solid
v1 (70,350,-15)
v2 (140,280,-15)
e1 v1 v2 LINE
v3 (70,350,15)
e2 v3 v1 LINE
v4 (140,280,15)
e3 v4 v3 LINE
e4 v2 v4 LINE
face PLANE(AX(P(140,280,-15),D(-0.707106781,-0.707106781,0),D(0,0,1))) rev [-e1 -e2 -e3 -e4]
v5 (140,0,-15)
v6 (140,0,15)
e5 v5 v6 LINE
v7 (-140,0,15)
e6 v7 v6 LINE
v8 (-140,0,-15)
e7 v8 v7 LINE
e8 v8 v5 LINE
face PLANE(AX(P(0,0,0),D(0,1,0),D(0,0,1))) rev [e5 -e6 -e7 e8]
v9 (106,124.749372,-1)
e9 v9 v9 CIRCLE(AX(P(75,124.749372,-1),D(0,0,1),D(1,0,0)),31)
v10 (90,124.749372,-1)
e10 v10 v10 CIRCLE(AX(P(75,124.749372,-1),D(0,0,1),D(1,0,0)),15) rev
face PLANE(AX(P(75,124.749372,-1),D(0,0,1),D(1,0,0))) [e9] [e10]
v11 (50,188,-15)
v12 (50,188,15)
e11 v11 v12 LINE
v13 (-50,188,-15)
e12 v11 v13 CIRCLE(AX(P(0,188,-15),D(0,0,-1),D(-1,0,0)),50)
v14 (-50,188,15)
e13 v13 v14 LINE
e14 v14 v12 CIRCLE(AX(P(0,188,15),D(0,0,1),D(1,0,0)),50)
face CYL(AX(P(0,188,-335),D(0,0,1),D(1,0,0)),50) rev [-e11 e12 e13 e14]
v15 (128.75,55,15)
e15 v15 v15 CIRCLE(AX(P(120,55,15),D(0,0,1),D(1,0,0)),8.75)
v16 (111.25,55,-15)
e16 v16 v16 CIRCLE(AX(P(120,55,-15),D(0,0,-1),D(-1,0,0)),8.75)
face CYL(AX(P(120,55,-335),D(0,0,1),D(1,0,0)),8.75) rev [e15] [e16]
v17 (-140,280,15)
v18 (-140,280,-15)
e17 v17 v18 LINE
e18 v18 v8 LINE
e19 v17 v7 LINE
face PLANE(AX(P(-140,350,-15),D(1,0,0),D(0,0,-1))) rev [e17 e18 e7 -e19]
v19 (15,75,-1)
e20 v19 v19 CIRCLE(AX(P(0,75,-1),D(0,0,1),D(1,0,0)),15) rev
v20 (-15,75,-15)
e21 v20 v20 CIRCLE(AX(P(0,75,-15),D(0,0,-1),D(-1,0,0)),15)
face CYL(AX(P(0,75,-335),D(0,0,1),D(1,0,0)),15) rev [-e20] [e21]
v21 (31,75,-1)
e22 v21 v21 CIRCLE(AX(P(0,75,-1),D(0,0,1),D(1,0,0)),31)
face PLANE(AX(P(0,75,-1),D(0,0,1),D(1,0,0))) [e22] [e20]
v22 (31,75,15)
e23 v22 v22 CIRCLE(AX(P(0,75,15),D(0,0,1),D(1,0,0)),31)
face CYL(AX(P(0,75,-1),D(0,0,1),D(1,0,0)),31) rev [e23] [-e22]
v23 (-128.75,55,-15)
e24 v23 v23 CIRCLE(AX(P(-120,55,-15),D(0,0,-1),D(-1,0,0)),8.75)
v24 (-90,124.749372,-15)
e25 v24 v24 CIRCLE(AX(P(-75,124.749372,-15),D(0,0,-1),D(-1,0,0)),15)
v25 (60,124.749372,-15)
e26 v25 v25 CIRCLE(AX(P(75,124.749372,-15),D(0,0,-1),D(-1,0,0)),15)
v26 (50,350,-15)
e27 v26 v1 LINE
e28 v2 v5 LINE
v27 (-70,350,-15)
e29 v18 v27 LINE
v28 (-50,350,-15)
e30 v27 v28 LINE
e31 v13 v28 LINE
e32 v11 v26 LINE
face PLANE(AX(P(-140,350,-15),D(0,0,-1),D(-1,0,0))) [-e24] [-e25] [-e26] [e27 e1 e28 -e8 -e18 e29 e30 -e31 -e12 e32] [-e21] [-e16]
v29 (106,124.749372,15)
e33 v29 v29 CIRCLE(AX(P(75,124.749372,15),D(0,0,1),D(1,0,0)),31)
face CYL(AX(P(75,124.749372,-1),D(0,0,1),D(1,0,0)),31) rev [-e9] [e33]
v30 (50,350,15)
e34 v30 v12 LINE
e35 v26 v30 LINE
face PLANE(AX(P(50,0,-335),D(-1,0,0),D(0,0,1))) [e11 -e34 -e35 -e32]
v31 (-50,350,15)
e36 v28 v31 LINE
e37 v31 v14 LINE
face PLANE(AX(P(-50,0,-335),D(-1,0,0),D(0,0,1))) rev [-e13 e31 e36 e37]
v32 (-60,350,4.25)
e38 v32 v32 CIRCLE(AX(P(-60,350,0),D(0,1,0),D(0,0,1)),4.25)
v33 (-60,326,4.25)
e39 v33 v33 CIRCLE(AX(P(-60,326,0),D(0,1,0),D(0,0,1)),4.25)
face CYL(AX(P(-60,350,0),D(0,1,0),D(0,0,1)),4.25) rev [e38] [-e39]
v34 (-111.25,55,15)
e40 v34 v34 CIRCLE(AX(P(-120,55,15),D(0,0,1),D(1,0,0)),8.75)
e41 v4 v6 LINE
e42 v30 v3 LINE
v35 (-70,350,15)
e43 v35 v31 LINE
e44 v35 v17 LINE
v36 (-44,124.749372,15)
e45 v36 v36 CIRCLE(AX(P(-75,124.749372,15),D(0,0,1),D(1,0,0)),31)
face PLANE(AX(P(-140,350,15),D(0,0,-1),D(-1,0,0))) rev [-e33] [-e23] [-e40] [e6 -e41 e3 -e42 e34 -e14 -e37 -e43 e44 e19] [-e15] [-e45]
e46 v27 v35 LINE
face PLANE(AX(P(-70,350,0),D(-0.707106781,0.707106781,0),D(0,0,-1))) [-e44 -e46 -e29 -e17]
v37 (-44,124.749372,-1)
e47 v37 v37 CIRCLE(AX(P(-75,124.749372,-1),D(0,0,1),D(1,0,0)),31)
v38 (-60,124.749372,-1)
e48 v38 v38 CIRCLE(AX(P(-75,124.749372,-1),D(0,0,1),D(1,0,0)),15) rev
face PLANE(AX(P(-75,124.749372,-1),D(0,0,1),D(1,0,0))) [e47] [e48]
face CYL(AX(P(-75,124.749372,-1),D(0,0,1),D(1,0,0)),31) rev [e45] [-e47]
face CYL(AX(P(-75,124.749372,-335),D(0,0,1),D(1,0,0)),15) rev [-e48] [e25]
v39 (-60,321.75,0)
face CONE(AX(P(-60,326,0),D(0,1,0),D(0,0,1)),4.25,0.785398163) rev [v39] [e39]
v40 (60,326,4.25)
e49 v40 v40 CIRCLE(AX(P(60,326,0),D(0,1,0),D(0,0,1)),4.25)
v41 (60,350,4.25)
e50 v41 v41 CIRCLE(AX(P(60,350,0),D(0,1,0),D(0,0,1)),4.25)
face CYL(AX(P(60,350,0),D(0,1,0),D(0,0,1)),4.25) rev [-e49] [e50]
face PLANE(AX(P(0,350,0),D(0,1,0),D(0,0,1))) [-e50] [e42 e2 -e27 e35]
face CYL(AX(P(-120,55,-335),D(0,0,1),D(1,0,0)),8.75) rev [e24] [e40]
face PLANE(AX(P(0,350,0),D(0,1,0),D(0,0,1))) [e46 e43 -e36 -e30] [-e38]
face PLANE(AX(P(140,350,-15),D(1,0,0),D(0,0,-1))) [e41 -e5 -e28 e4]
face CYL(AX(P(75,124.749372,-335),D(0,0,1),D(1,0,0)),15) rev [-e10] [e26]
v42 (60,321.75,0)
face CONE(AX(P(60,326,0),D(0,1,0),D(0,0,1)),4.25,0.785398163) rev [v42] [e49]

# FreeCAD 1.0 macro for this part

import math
import FreeCAD as App
import Part
import Sketcher


def edges_at(feature, points):
    """Names of the edges that pass closest to the given points."""
    edges = feature.Shape.Edges
    near = lambda p: min(range(len(edges)), key=lambda i: edges[i].distToShape(Part.Vertex(*p))[0])
    return sorted({f"Edge{near(p) + 1}" for p in points})


def add_polygon(sketch, points):
    """Adds a closed chain of lines whose ends are joined by coincident constraints."""
    first, n = sketch.GeometryCount, len(points)
    for a, b in zip(points, points[1:] + points[:1]):
        sketch.addGeometry(Part.LineSegment(App.Vector(*a, 0), App.Vector(*b, 0)), False)
    for i in range(n):
        sketch.addConstraint(Sketcher.Constraint("Coincident", first + i, 2, first + (i + 1) % n, 1))

doc = App.newDocument("Part")
params = doc.addObject("Spreadsheet::Sheet", "Params")
for row, (alias, value) in enumerate([
    ("sketch1_width", "280 mm"),
    ("sketch1_height", "30 mm"),
    ("pad1_length", "350 mm"),
    ("sketch2_radius", "50 mm"),
    ("sketch2_height", "162 mm"),
    ("pocket1_length", "350 mm"),
    ("chamfer_size", "70 mm"),
    ("sketch3_diameter", "8.5 mm"),
    ("hole_diameter", "8.5 mm"),
    ("hole_depth", "24 mm"),
    ("sketch4_diameter", "17.5 mm"),
    ("pocket2_length", "350 mm"),
    ("sketch5_diameter", "30 mm"),
    ("pocket3_length", "350 mm"),
    ("sketch6_diameter", "62 mm"),
    ("pocket4_length", "16 mm"),
], start=1):
    params.set(f"A{row}", alias)
    params.set(f"B{row}", "=" + value)
    params.setAlias(f"B{row}", alias)

body = doc.addObject("PartDesign::Body", "Body")

sketch1 = body.newObject("Sketcher::SketchObject", "Sketch")
sketch1.AttachmentSupport = (doc.getObject("XZ_Plane"), [""])
sketch1.MapMode = "FlatFace"
add_polygon(sketch1, [(-140, -15), (-140, 15), (140, 15), (140, -15)])
sketch1.addConstraint(Sketcher.Constraint("Vertical", 0))
sketch1.addConstraint(Sketcher.Constraint("Horizontal", 1))
sketch1.addConstraint(Sketcher.Constraint("Vertical", 2))
sketch1.addConstraint(Sketcher.Constraint("Horizontal", 3))
sketch1.addConstraint(Sketcher.Constraint("Symmetric", 0, 2, 2, 2, -1, 1))
sketch1.addConstraint(Sketcher.Constraint("DistanceX", 1, 1, 1, 2, 280.0))
sketch1.addConstraint(Sketcher.Constraint("DistanceY", 0, 1, 0, 2, 30.0))
sketch1.setExpression("Constraints[9]", "Params.sketch1_width")
sketch1.setExpression("Constraints[10]", "Params.sketch1_height")
pad1 = body.newObject("PartDesign::Pad", "Pad")
pad1.Profile = sketch1
pad1.setExpression("Length", "Params.pad1_length")
pad1.Reversed = True

sketch2 = body.newObject("Sketcher::SketchObject", "Sketch001")
sketch2.AttachmentSupport = (doc.getObject("XY_Plane"), [""])
sketch2.MapMode = "FlatFace"
sketch2.AttachmentOffset = App.Placement(App.Vector(0, 0, 15), App.Rotation())
sketch2.addGeometry(Part.ArcOfCircle(Part.Circle(App.Vector(0, 350, 0), App.Vector(0, 0, 1), 50), math.radians(90), math.radians(180)), False)
sketch2.addGeometry(Part.LineSegment(App.Vector(-50, 350, 0), App.Vector(-50, 188, 0)), False)
sketch2.addGeometry(Part.ArcOfCircle(Part.Circle(App.Vector(0, 188, 0), App.Vector(0, 0, 1), 50), math.radians(-180), math.radians(-90)), False)
sketch2.addGeometry(Part.ArcOfCircle(Part.Circle(App.Vector(0, 188, 0), App.Vector(0, 0, 1), 50), math.radians(-90), math.radians(0)), False)
sketch2.addGeometry(Part.LineSegment(App.Vector(50, 188, 0), App.Vector(50, 350, 0)), False)
sketch2.addGeometry(Part.ArcOfCircle(Part.Circle(App.Vector(0, 350, 0), App.Vector(0, 0, 1), 50), math.radians(0), math.radians(90)), False)
sketch2.addConstraint(Sketcher.Constraint("Tangent", 0, 2, 1, 1))
sketch2.addConstraint(Sketcher.Constraint("Tangent", 1, 2, 2, 1))
sketch2.addConstraint(Sketcher.Constraint("Tangent", 2, 2, 3, 1))
sketch2.addConstraint(Sketcher.Constraint("Tangent", 3, 2, 4, 1))
sketch2.addConstraint(Sketcher.Constraint("Tangent", 4, 2, 5, 1))
sketch2.addConstraint(Sketcher.Constraint("Tangent", 5, 2, 0, 1))
sketch2.addConstraint(Sketcher.Constraint("Vertical", 1))
sketch2.addConstraint(Sketcher.Constraint("Vertical", 4))
sketch2.addConstraint(Sketcher.Constraint("Equal", 0, 2))
sketch2.addConstraint(Sketcher.Constraint("Equal", 2, 3))
sketch2.addConstraint(Sketcher.Constraint("PointOnObject", 0, 3, -2))
sketch2.addConstraint(Sketcher.Constraint("PointOnObject", 2, 2, -2))
sketch2.addConstraint(Sketcher.Constraint("PointOnObject", 5, 2, -2))
sketch2.addConstraint(Sketcher.Constraint("Radius", 0, 50.0))
sketch2.addConstraint(Sketcher.Constraint("DistanceY", 1, 2, 1, 1, 162.0))
sketch2.addConstraint(Sketcher.Constraint("DistanceY", -1, 1, 0, 3, 350.0))
sketch2.setExpression("Constraints[13]", "Params.sketch2_radius")
sketch2.setExpression("Constraints[14]", "Params.sketch2_height")
pocket1 = body.newObject("PartDesign::Pocket", "Pocket")
pocket1.Profile = sketch2
pocket1.setExpression("Length", "Params.pocket1_length")
doc.recompute()

chamfer = body.newObject("PartDesign::Chamfer", "Chamfer")
chamfer.Base = (pocket1, edges_at(pocket1, [(140, 350, 0), (-140, 350, 0)]))
chamfer.setExpression("Size", "Params.chamfer_size")

sketch3 = body.newObject("Sketcher::SketchObject", "Sketch002")
sketch3.AttachmentSupport = (doc.getObject("XZ_Plane"), [""])
sketch3.MapMode = "FlatFace"
sketch3.AttachmentOffset = App.Placement(App.Vector(0, 0, -350), App.Rotation())
sketch3.addGeometry(Part.Circle(App.Vector(-60, 0, 0), App.Vector(0, 0, 1), 4.25), False)
sketch3.addGeometry(Part.Circle(App.Vector(60, 0, 0), App.Vector(0, 0, 1), 4.25), False)
sketch3.addConstraint(Sketcher.Constraint("Equal", 0, 1))
sketch3.addConstraint(Sketcher.Constraint("Symmetric", 0, 3, 1, 3, -1, 1))
sketch3.addConstraint(Sketcher.Constraint("PointOnObject", 0, 3, -1))
sketch3.addConstraint(Sketcher.Constraint("Diameter", 0, 8.5))
sketch3.addConstraint(Sketcher.Constraint("DistanceX", 0, 3, -1, 1, 60.0))
sketch3.setExpression("Constraints[3]", "Params.sketch3_diameter")
doc.recompute()
hole = body.newObject("PartDesign::Hole", "Hole")
hole.Profile = sketch3
hole.ThreadType = "None"
hole.setExpression("Diameter", "Params.hole_diameter")
hole.DepthType = "Dimension"
hole.setExpression("Depth", "Params.hole_depth")
hole.DrillPoint = "Angled"
hole.DrillPointAngle = 90
hole.Reversed = True

sketch4 = body.newObject("Sketcher::SketchObject", "Sketch003")
sketch4.AttachmentSupport = (doc.getObject("XY_Plane"), [""])
sketch4.MapMode = "FlatFace"
sketch4.AttachmentOffset = App.Placement(App.Vector(0, 0, 15), App.Rotation())
sketch4.addGeometry(Part.Circle(App.Vector(-120, 55, 0), App.Vector(0, 0, 1), 8.75), False)
sketch4.addGeometry(Part.Circle(App.Vector(120, 55, 0), App.Vector(0, 0, 1), 8.75), False)
sketch4.addConstraint(Sketcher.Constraint("Equal", 0, 1))
sketch4.addConstraint(Sketcher.Constraint("Symmetric", 0, 3, 1, 3, -2))
sketch4.addConstraint(Sketcher.Constraint("Diameter", 0, 17.5))
sketch4.addConstraint(Sketcher.Constraint("DistanceX", 0, 3, -1, 1, 120.0))
sketch4.addConstraint(Sketcher.Constraint("DistanceY", -1, 1, 0, 3, 55.0))
sketch4.setExpression("Constraints[2]", "Params.sketch4_diameter")
pocket2 = body.newObject("PartDesign::Pocket", "Pocket001")
pocket2.Profile = sketch4
pocket2.setExpression("Length", "Params.pocket2_length")

sketch5 = body.newObject("Sketcher::SketchObject", "Sketch004")
sketch5.AttachmentSupport = (doc.getObject("XY_Plane"), [""])
sketch5.MapMode = "FlatFace"
sketch5.AttachmentOffset = App.Placement(App.Vector(0, 0, 15), App.Rotation())
sketch5.addGeometry(Part.Circle(App.Vector(-75, 124.749372, 0), App.Vector(0, 0, 1), 15), False)
sketch5.addGeometry(Part.Circle(App.Vector(75, 124.749372, 0), App.Vector(0, 0, 1), 15), False)
sketch5.addGeometry(Part.Circle(App.Vector(0, 75, 0), App.Vector(0, 0, 1), 15), False)
sketch5.addConstraint(Sketcher.Constraint("Equal", 0, 1))
sketch5.addConstraint(Sketcher.Constraint("Equal", 1, 2))
sketch5.addConstraint(Sketcher.Constraint("Symmetric", 0, 3, 1, 3, -2))
sketch5.addConstraint(Sketcher.Constraint("PointOnObject", 2, 3, -2))
sketch5.addConstraint(Sketcher.Constraint("Diameter", 0, 30.0))
sketch5.addConstraint(Sketcher.Constraint("DistanceX", 0, 3, -1, 1, 75.0))
sketch5.addConstraint(Sketcher.Constraint("DistanceY", -1, 1, 2, 3, 75.0))
sketch5.addConstraint(Sketcher.Constraint("DistanceY", -1, 1, 0, 3, 124.749372))
sketch5.setExpression("Constraints[4]", "Params.sketch5_diameter")
pocket3 = body.newObject("PartDesign::Pocket", "Pocket002")
pocket3.Profile = sketch5
pocket3.setExpression("Length", "Params.pocket3_length")

sketch6 = body.newObject("Sketcher::SketchObject", "Sketch005")
sketch6.AttachmentSupport = (doc.getObject("XY_Plane"), [""])
sketch6.MapMode = "FlatFace"
sketch6.AttachmentOffset = App.Placement(App.Vector(0, 0, 15), App.Rotation())
sketch6.addGeometry(Part.Circle(App.Vector(-75, 124.749372, 0), App.Vector(0, 0, 1), 31), False)
sketch6.addGeometry(Part.Circle(App.Vector(0, 75, 0), App.Vector(0, 0, 1), 31), False)
sketch6.addGeometry(Part.Circle(App.Vector(75, 124.749372, 0), App.Vector(0, 0, 1), 31), False)
sketch6.addConstraint(Sketcher.Constraint("Equal", 0, 1))
sketch6.addConstraint(Sketcher.Constraint("Equal", 1, 2))
sketch6.addConstraint(Sketcher.Constraint("Symmetric", 0, 3, 2, 3, -2))
sketch6.addConstraint(Sketcher.Constraint("PointOnObject", 1, 3, -2))
sketch6.addConstraint(Sketcher.Constraint("Diameter", 0, 62.0))
sketch6.addConstraint(Sketcher.Constraint("DistanceX", 0, 3, -1, 1, 75.0))
sketch6.addConstraint(Sketcher.Constraint("DistanceY", -1, 1, 1, 3, 75.0))
sketch6.addConstraint(Sketcher.Constraint("DistanceY", -1, 1, 0, 3, 124.749372))
sketch6.setExpression("Constraints[4]", "Params.sketch6_diameter")
pocket4 = body.newObject("PartDesign::Pocket", "Pocket003")
pocket4.Profile = sketch6
pocket4.setExpression("Length", "Params.pocket4_length")

doc.recompute()
